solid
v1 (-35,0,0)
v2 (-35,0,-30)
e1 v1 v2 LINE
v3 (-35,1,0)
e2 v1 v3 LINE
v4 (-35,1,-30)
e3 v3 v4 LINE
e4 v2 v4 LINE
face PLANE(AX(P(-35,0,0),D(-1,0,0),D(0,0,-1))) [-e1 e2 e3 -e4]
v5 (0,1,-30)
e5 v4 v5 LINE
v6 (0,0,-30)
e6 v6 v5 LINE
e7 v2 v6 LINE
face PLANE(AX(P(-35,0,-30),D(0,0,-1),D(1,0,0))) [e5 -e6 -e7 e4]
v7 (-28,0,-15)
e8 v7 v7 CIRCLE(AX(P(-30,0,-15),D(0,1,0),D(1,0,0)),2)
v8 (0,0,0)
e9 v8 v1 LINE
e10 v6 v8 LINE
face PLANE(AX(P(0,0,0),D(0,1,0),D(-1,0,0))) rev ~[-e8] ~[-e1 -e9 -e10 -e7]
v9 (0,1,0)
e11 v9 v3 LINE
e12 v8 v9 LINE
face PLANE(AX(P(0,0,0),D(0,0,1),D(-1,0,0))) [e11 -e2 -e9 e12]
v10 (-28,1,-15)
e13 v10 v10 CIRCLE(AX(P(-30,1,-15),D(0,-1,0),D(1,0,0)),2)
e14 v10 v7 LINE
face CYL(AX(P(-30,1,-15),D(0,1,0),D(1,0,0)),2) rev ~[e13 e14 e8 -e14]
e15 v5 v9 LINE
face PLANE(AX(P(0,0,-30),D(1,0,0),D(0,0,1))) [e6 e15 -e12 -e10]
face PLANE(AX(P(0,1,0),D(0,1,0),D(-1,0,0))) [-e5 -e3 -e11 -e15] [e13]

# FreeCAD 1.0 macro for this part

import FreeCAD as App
import Part
import Sketcher
from FreeCAD import Vector

doc = App.newDocument("Part")
body = doc.addObject("PartDesign::Body", "Body")

sketch1 = body.newObject("Sketcher::SketchObject", "Sketch")
sketch1.AttachmentSupport = (doc.getObject("XZ_Plane"), [""])
sketch1.MapMode = "FlatFace"
sketch1.addGeometry(Part.LineSegment(Vector(-35, 0, 0), Vector(0, 0, 0)), False)
sketch1.addGeometry(Part.LineSegment(Vector(0, 0, 0), Vector(0, -30, 0)), False)
sketch1.addGeometry(Part.LineSegment(Vector(0, -30, 0), Vector(-35, -30, 0)), False)
sketch1.addGeometry(Part.LineSegment(Vector(-35, -30, 0), Vector(-35, 0, 0)), False)
sketch1.addConstraint(Sketcher.Constraint("Coincident", 0, 2, 1, 1))
sketch1.addConstraint(Sketcher.Constraint("Coincident", 1, 2, 2, 1))
sketch1.addConstraint(Sketcher.Constraint("Coincident", 2, 2, 3, 1))
sketch1.addConstraint(Sketcher.Constraint("Coincident", 3, 2, 0, 1))
sketch1.addConstraint(Sketcher.Constraint("Horizontal", 0))
sketch1.addConstraint(Sketcher.Constraint("Vertical", 1))
sketch1.addConstraint(Sketcher.Constraint("Horizontal", 2))
sketch1.addConstraint(Sketcher.Constraint("Vertical", 3))
sketch1.addConstraint(Sketcher.Constraint("Coincident", 0, 2, -1, 1))
sketch1.addConstraint(Sketcher.Constraint("DistanceX", 0, 1, 0, 2, 35.0))
sketch1.addConstraint(Sketcher.Constraint("DistanceY", 1, 2, 1, 1, 30.0))
pad1 = body.newObject("PartDesign::Pad", "Pad")
pad1.Profile = sketch1
pad1.Length = 1
pad1.Reversed = True

sketch2 = body.newObject("Sketcher::SketchObject", "Sketch001")
sketch2.AttachmentSupport = (doc.getObject("XZ_Plane"), [""])
sketch2.MapMode = "FlatFace"
sketch2.AttachmentOffset = App.Placement(Vector(0, 0, -1), App.Rotation())
sketch2.addGeometry(Part.Circle(Vector(-30, -15, 0), Vector(0, 0, 1), 2), False)
sketch2.addConstraint(Sketcher.Constraint("Diameter", 0, 4.0))
sketch2.addConstraint(Sketcher.Constraint("DistanceX", 0, 3, -1, 1, 30.0))
sketch2.addConstraint(Sketcher.Constraint("DistanceY", 0, 3, -1, 1, 15.0))
pocket1 = body.newObject("PartDesign::Pocket", "Pocket")
pocket1.Profile = sketch2
pocket1.Length = 1
pocket1.Reversed = True

doc.recompute()
